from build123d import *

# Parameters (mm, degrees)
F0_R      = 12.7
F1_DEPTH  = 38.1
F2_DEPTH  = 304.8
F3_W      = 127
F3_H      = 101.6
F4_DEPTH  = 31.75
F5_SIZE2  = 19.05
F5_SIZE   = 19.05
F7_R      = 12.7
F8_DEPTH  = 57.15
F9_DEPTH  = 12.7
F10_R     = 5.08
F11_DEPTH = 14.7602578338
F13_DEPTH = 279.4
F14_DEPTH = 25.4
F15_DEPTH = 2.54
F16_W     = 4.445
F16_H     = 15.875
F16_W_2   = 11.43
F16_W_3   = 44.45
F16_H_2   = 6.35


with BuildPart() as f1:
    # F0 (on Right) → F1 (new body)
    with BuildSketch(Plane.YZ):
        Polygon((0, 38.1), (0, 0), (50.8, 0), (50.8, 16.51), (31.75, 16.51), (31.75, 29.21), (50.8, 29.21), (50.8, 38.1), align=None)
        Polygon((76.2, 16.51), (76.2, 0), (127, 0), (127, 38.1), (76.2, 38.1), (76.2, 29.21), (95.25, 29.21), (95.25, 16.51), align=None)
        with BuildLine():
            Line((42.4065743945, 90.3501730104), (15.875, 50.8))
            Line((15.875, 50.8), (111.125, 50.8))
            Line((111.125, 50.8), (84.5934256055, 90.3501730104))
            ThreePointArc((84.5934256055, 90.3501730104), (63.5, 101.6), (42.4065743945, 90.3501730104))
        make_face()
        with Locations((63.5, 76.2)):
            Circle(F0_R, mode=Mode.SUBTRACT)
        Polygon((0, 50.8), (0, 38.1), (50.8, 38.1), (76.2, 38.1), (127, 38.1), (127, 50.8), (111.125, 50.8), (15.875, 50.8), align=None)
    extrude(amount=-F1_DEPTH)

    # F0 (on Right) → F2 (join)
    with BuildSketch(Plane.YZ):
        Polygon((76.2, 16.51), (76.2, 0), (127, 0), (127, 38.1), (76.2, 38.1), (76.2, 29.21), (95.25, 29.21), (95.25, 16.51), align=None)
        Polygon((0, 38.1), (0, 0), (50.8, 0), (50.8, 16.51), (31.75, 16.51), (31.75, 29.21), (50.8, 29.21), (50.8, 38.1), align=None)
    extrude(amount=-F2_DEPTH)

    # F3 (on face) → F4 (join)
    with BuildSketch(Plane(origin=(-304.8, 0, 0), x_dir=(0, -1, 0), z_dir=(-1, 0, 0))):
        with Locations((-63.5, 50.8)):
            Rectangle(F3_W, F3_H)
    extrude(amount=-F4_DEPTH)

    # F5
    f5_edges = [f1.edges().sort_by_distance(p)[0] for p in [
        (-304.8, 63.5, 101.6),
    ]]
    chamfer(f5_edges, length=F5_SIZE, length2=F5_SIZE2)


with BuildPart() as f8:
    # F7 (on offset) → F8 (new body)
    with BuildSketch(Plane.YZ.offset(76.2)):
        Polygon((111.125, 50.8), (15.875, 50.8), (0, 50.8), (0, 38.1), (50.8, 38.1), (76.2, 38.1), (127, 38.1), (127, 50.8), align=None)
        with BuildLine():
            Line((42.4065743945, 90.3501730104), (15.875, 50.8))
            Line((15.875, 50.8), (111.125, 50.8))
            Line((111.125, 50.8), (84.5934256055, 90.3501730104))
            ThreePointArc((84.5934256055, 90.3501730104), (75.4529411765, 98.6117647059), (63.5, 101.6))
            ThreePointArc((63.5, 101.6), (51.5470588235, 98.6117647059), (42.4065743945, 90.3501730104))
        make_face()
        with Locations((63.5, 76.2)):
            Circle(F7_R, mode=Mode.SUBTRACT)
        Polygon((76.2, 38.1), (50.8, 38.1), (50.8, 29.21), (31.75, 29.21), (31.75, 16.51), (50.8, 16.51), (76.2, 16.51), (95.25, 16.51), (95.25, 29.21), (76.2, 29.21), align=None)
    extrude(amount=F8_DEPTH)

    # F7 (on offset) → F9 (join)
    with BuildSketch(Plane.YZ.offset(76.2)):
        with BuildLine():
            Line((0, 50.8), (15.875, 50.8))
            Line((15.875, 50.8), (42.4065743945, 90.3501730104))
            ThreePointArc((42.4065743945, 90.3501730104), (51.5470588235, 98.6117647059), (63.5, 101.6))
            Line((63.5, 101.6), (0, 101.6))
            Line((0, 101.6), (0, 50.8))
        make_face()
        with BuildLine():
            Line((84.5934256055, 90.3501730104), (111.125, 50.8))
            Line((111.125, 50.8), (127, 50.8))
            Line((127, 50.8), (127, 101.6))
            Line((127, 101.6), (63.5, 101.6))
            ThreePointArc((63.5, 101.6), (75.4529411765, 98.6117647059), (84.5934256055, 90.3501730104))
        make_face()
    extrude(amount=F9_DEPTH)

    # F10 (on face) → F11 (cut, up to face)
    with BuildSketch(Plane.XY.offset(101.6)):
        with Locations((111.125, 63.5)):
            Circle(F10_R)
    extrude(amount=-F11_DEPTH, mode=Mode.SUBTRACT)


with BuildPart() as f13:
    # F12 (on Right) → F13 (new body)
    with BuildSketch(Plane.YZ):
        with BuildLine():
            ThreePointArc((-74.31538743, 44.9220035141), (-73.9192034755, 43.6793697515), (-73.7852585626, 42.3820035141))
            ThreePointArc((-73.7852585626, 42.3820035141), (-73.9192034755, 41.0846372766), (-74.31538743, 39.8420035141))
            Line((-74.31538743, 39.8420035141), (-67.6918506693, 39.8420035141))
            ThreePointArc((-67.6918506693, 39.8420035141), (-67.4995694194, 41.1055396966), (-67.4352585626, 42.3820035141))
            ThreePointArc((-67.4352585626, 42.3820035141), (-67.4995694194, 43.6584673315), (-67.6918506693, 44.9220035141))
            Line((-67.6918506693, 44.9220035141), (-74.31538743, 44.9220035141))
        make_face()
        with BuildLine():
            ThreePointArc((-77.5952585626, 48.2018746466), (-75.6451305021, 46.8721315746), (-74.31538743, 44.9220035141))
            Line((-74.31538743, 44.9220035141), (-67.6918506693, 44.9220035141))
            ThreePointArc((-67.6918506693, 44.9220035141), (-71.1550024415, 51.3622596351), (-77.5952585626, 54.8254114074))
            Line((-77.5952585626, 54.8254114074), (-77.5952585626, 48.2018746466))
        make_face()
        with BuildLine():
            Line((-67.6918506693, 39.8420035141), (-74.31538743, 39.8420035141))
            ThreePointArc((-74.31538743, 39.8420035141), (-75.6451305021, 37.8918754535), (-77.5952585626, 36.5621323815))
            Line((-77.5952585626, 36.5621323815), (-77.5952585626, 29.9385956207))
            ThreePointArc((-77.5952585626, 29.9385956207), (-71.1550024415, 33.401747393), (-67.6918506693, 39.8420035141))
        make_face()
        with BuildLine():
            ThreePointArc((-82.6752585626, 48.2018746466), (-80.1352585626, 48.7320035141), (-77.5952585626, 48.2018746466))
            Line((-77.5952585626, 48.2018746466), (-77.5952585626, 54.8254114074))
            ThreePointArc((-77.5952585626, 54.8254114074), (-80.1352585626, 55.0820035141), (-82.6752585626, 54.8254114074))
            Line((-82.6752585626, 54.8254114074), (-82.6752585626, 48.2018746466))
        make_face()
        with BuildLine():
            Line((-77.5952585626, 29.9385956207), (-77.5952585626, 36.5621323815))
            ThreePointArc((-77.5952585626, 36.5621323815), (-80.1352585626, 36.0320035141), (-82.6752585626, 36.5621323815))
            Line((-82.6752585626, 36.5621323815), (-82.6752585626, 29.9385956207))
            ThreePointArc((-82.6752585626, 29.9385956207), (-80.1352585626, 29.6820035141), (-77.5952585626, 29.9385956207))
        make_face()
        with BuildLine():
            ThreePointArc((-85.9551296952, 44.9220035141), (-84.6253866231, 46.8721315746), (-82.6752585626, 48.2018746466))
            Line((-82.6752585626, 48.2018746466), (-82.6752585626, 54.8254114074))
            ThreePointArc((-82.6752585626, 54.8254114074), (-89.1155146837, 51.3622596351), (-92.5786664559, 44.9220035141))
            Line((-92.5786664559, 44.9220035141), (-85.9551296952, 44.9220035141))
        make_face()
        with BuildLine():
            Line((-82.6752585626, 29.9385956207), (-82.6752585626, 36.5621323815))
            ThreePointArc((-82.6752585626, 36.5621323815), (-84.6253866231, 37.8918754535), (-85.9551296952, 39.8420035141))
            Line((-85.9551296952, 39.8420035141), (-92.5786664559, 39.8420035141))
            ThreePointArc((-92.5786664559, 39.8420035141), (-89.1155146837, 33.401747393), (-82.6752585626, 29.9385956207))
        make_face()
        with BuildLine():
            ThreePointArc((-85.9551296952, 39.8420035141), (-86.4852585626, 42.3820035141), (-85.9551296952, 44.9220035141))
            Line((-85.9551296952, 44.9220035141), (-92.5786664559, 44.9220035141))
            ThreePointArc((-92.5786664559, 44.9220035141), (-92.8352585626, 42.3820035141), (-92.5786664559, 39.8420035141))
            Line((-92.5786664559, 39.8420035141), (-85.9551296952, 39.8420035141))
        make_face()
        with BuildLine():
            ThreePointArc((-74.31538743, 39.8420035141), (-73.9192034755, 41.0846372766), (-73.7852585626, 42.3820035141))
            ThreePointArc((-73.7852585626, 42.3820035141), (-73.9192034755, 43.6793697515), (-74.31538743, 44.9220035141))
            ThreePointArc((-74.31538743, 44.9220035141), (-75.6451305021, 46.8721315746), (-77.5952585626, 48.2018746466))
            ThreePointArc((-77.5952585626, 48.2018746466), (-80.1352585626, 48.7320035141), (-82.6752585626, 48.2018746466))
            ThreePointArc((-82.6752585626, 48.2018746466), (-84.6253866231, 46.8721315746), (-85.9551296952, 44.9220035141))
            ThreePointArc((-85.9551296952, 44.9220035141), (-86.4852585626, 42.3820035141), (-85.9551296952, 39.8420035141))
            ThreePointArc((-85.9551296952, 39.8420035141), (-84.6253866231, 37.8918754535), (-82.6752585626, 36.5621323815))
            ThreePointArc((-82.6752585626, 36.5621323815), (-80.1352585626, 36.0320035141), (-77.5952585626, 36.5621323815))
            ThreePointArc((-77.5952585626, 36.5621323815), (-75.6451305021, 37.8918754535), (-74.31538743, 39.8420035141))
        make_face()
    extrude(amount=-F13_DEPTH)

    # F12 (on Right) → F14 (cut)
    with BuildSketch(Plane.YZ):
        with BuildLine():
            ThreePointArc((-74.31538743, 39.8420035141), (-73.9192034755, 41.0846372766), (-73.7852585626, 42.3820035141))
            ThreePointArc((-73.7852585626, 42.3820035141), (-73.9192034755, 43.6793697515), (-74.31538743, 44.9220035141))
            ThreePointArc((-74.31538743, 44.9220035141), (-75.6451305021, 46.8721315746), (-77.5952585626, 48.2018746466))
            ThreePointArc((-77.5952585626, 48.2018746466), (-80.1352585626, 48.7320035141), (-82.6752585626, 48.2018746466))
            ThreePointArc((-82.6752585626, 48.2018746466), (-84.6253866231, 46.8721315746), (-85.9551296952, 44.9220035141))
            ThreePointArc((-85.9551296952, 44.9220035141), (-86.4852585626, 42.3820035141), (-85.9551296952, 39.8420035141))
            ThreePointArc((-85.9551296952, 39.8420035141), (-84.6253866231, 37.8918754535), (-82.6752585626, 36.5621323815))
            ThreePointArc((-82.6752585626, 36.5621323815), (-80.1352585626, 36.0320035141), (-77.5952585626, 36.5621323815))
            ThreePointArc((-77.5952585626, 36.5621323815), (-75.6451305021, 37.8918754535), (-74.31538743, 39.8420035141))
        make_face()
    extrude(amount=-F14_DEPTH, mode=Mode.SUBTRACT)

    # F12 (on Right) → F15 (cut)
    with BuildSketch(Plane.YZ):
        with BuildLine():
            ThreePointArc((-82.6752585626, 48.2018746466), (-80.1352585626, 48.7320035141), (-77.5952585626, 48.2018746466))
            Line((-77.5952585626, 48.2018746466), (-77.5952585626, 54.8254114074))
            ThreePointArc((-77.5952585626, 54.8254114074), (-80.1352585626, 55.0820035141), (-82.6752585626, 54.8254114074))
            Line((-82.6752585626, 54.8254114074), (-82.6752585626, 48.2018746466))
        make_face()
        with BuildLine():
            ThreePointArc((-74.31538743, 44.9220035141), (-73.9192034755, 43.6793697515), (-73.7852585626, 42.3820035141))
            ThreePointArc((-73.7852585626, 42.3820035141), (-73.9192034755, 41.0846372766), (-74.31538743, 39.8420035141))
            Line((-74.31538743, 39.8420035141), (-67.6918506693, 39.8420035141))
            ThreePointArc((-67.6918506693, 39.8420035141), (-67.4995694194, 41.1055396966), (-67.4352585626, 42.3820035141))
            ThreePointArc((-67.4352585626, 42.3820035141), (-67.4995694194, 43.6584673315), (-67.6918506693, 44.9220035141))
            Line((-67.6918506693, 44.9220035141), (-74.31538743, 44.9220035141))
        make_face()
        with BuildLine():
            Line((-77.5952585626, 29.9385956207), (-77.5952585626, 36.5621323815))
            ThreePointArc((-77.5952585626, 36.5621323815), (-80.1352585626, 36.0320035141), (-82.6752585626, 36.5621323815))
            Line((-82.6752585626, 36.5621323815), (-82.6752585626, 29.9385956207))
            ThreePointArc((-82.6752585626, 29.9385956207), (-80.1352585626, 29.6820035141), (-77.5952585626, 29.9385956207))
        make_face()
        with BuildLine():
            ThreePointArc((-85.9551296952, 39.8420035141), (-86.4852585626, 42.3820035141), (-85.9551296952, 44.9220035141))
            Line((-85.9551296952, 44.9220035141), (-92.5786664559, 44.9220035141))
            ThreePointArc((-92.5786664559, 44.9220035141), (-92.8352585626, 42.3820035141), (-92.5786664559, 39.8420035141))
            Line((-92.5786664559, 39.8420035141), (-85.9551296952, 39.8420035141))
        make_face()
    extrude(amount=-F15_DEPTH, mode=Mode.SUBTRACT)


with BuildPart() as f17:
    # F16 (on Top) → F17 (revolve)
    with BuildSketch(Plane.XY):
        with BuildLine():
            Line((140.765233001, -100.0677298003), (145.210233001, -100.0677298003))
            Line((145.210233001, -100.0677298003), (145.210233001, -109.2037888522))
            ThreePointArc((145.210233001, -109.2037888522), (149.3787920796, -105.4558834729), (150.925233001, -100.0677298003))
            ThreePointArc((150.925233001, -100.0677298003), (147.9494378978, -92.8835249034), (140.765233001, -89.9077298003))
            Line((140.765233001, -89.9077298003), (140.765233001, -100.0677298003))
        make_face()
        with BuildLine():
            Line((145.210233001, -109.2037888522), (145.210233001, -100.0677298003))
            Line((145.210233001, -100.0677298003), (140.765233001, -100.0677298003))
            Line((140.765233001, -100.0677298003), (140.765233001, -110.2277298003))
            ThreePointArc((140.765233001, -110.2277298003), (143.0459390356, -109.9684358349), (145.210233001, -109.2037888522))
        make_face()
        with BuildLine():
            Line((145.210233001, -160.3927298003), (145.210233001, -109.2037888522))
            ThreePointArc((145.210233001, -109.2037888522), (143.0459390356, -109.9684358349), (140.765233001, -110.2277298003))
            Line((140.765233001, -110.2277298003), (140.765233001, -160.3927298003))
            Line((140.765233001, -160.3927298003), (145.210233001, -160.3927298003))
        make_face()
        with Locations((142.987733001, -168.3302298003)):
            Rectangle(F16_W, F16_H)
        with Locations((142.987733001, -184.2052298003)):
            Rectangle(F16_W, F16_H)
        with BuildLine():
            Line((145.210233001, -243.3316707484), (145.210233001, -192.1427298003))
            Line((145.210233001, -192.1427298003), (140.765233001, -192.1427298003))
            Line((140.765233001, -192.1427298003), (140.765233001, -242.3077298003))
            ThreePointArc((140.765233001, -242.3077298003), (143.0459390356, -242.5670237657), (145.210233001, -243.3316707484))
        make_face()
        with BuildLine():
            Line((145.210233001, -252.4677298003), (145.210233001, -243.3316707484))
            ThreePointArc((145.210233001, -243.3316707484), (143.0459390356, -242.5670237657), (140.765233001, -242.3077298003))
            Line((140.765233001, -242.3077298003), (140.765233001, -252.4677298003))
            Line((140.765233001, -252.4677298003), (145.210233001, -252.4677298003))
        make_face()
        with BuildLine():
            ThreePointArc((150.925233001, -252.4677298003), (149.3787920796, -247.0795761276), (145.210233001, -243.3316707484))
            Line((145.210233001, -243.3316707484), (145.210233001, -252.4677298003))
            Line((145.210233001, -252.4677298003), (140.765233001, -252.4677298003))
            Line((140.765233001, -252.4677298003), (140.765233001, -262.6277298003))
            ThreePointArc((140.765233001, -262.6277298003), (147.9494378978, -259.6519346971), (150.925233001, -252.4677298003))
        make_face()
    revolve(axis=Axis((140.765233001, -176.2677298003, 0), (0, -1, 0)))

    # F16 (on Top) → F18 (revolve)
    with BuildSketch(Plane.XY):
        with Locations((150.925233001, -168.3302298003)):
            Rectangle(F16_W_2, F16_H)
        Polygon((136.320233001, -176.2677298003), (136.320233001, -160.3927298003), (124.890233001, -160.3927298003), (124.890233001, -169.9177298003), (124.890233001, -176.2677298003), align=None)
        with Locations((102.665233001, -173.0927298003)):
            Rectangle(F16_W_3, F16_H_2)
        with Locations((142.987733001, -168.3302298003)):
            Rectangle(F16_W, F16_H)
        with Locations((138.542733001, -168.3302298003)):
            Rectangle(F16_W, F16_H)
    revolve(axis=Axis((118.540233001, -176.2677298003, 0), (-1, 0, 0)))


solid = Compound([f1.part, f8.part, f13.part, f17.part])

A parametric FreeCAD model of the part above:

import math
import FreeCAD as App
import Part
import Sketcher
Q = App.Units.Quantity


def edges_at(feature, points):
    """Names of the edges that pass closest to the given points."""
    edges = feature.Shape.Edges
    near = lambda p: min(range(len(edges)), key=lambda i: edges[i].distToShape(Part.Vertex(*p))[0])
    return sorted({f"Edge{near(p) + 1}" for p in points})


def add_polygon(sketch, points):
    """Adds a closed chain of lines whose ends are joined by coincident constraints."""
    first, n = sketch.GeometryCount, len(points)
    for a, b in zip(points, points[1:] + points[:1]):
        sketch.addGeometry(Part.LineSegment(App.Vector(*a, 0), App.Vector(*b, 0)), False)
    for i in range(n):
        sketch.addConstraint(Sketcher.Constraint("Coincident", first + i, 2, first + (i + 1) % n, 1))

doc = App.newDocument("Part")
params = doc.addObject("Spreadsheet::Sheet", "Params")
for row, (alias, value) in enumerate([
    ("sketch1_diameter", "1 in"),
    ("sketch1_radius", "1 in"),
    ("sketch1_width", "2 in"),
    ("sketch1_width2", "1 in"),
    ("sketch1_height", "0.5 in"),
    ("pad1_length", "1.5 in"),
    ("sketch2_width", "2 in"),
    ("sketch2_height", "1.5 in"),
    ("sketch2_height2", "0.5 in"),
    ("sketch2_width2", "0.75 in"),
    ("sketch2_height3", "0.65 in"),
    ("pad2_length", "12 in"),
    ("sketch3_width", "5 in"),
    ("sketch3_height", "4 in"),
    ("pad3_length", "1.25 in"),
    ("chamfer_size", "0.75 in"),
    ("chamfer_size2", "0.75 in"),
    ("sketch4_diameter", "1 in"),
    ("sketch4_radius", "1 in"),
    ("sketch4_width", "2 in"),
    ("sketch4_width2", "2.5 in"),
    ("sketch4_height", "0.5 in"),
    ("pad4_length", "2.25 in"),
    ("sketch5_radius", "1 in"),
    ("sketch5_height", "2 in"),
    ("sketch5_width", "2.5 in"),
    ("sketch5_width2", "0.625 in"),
    ("pad5_length", "0.5 in"),
    ("sketch6_diameter", "0.4 in"),
    ("pocket1_length", "14.760258 mm"),
    ("sketch7_radius", "0.5 in"),
    ("pad6_length", "11 in"),
    ("sketch8_radius", "0.25 in"),
    ("pocket2_length", "1 in"),
    ("sketch9_radius", "0.5 in"),
    ("sketch9_radius2", "0.25 in"),
    ("pocket3_length", "0.1 in"),
    ("sketch10_radius", "0.4 in"),
    ("sketch10_height", "6.8 in"),
    ("revolution_angle", "360 deg"),
    ("sketch11_width", "3 in"),
    ("sketch11_width2", "1.25 in"),
    ("sketch11_height", "0.25 in"),
    ("sketch11_height2", "0.625 in"),
    ("revolution2_angle", "360 deg"),
], start=1):
    params.set(f"A{row}", alias)
    params.set(f"B{row}", "=" + value)
    params.setAlias(f"B{row}", alias)

body = doc.addObject("PartDesign::Body", "Body")

sketch1 = doc.addObject("Sketcher::SketchObject", "Sketch")
body.addObject(sketch1)
sketch1.AttachmentSupport = (doc.YZ_Plane, [""])
sketch1.MapMode = "FlatFace"
sketch1.addGeometry([
    Part.LineSegment(App.Vector(0, 0, 0), App.Vector(51, 0, 0)),
    Part.LineSegment(App.Vector(51, 0, 0), App.Vector(51, 17, 0)),
    Part.LineSegment(App.Vector(51, 17, 0), App.Vector(32, 17, 0)),
    Part.LineSegment(App.Vector(32, 17, 0), App.Vector(32, 29, 0)),
    Part.LineSegment(App.Vector(32, 29, 0), App.Vector(51, 29, 0)),
    Part.LineSegment(App.Vector(51, 29, 0), App.Vector(51, 38, 0)),
    Part.LineSegment(App.Vector(51, 38, 0), App.Vector(76, 38, 0)),
    Part.LineSegment(App.Vector(76, 38, 0), App.Vector(76, 29, 0)),
    Part.LineSegment(App.Vector(76, 29, 0), App.Vector(95, 29, 0)),
    Part.LineSegment(App.Vector(95, 29, 0), App.Vector(95, 17, 0)),
    Part.LineSegment(App.Vector(95, 17, 0), App.Vector(76, 17, 0)),
    Part.LineSegment(App.Vector(76, 17, 0), App.Vector(76, 0, 0)),
    Part.LineSegment(App.Vector(76, 0, 0), App.Vector(127, 0, 0)),
    Part.LineSegment(App.Vector(127, 0, 0), App.Vector(127, 51, 0)),
    Part.LineSegment(App.Vector(127, 51, 0), App.Vector(111, 51, 0)),
    Part.LineSegment(App.Vector(111, 51, 0), App.Vector(85, 90, 0)),
    Part.ArcOfCircle(Part.Circle(App.Vector(64, 76, 0), App.Vector(0, 0, 1), 25), math.radians(34), math.radians(146)),
    Part.LineSegment(App.Vector(42, 90, 0), App.Vector(16, 51, 0)),
    Part.LineSegment(App.Vector(16, 51, 0), App.Vector(0, 51, 0)),
    Part.LineSegment(App.Vector(0, 51, 0), App.Vector(0, 0, 0)),
    Part.Circle(App.Vector(64, 76, 0), App.Vector(0, 0, 1), 13),
], False)
sketch1.addConstraint([
    Sketcher.Constraint("Coincident", 0, 2, 1, 1),
    Sketcher.Constraint("Coincident", 1, 2, 2, 1),
    Sketcher.Constraint("Coincident", 2, 2, 3, 1),
    Sketcher.Constraint("Coincident", 3, 2, 4, 1),
    Sketcher.Constraint("Coincident", 4, 2, 5, 1),
    Sketcher.Constraint("Coincident", 5, 2, 6, 1),
    Sketcher.Constraint("Coincident", 6, 2, 7, 1),
    Sketcher.Constraint("Coincident", 7, 2, 8, 1),
    Sketcher.Constraint("Coincident", 8, 2, 9, 1),
    Sketcher.Constraint("Coincident", 9, 2, 10, 1),
    Sketcher.Constraint("Coincident", 10, 2, 11, 1),
    Sketcher.Constraint("Coincident", 11, 2, 12, 1),
    Sketcher.Constraint("Coincident", 12, 2, 13, 1),
    Sketcher.Constraint("Coincident", 13, 2, 14, 1),
    Sketcher.Constraint("Coincident", 14, 2, 15, 1),
    Sketcher.Constraint("Tangent", 15, 2, 16, 1),
    Sketcher.Constraint("Tangent", 16, 2, 17, 1),
    Sketcher.Constraint("Coincident", 17, 2, 18, 1),
    Sketcher.Constraint("Coincident", 18, 2, 19, 1),
    Sketcher.Constraint("Coincident", 19, 2, 0, 1),
    Sketcher.Constraint("Horizontal", 0),
    Sketcher.Constraint("Vertical", 1),
    Sketcher.Constraint("Horizontal", 2),
    Sketcher.Constraint("Vertical", 3),
    Sketcher.Constraint("Horizontal", 4),
    Sketcher.Constraint("Vertical", 5),
    Sketcher.Constraint("Horizontal", 6),
    Sketcher.Constraint("Vertical", 7),
    Sketcher.Constraint("Horizontal", 8),
    Sketcher.Constraint("Vertical", 9),
    Sketcher.Constraint("Horizontal", 10),
    Sketcher.Constraint("Vertical", 11),
    Sketcher.Constraint("Horizontal", 12),
    Sketcher.Constraint("Vertical", 13),
    Sketcher.Constraint("Horizontal", 14),
    Sketcher.Constraint("Horizontal", 18),
    Sketcher.Constraint("Vertical", 19),
    Sketcher.Constraint("Coincident", 19, 2, -1, 1),
    Sketcher.Constraint("Coincident", 20, 3, 16, 3),
    Sketcher.Constraint("PointOnObject", 11, 2, -1),
    Sketcher.Constraint("Horizontal", 4, 2, 7, 2),
    Sketcher.Constraint("Horizontal", 2, 2, 9, 2),
    Sketcher.Constraint("Horizontal", 15, 2, 16, 2),
    Sketcher.Constraint("Horizontal", 14, 2, 17, 2),
    Sketcher.Constraint("Vertical", 1, 2, 4, 2),
    Sketcher.Constraint("Vertical", 7, 2, 10, 2),
    Sketcher.Constraint("Equal", 4, 8),
    Sketcher.Constraint("Equal", 0, 12),
    Sketcher.Constraint("Equal", 14, 18),
    Sketcher.Constraint("Equal", 12, 13),
    Sketcher.Constraint("Diameter", 20, Q("1 in")),
    Sketcher.Constraint("Radius", 16, Q("1 in")),
    Sketcher.Constraint("DistanceX", 0, 1, 0, 2, Q("2 in")),
    Sketcher.Constraint("DistanceX", 6, 1, 6, 2, Q("1 in")),
    Sketcher.Constraint("DistanceY", 3, 1, 3, 2, Q("0.5 in")),
    Sketcher.Constraint("DistanceY", -1, 1, 16, 3, Q("3 in")),
    Sketcher.Constraint("DistanceX", 2, 2, 2, 1, Q("0.75 in")),
    Sketcher.Constraint("DistanceY", 1, 1, 1, 2, Q("0.65 in")),
    Sketcher.Constraint("DistanceY", 5, 1, 5, 2, Q("0.35 in")),
    Sketcher.Constraint("DistanceX", 14, 2, 14, 1, Q("0.625 in")),
])
sketch1.setExpression("Constraints[50]", "Params.sketch1_diameter")
sketch1.setExpression("Constraints[51]", "Params.sketch1_radius")
sketch1.setExpression("Constraints[52]", "Params.sketch1_width")
sketch1.setExpression("Constraints[53]", "Params.sketch1_width2")
sketch1.setExpression("Constraints[54]", "Params.sketch1_height")
pad1 = doc.addObject("PartDesign::Pad", "Pad")
body.addObject(pad1)
pad1.Profile = sketch1
pad1.setExpression("Length", "Params.pad1_length")
pad1.Reversed = True

sketch2 = doc.addObject("Sketcher::SketchObject", "Sketch001")
body.addObject(sketch2)
sketch2.AttachmentSupport = (doc.YZ_Plane, [""])
sketch2.MapMode = "FlatFace"
add_polygon(sketch2, [(76, 17), (76, 0), (127, 0), (127, 38), (76, 38), (76, 29), (95, 29), (95, 17)])
add_polygon(sketch2, [(0, 38), (0, 0), (51, 0), (51, 17), (32, 17), (32, 29), (51, 29), (51, 38)])
sketch2.addConstraint([
    Sketcher.Constraint("Vertical", 0),
    Sketcher.Constraint("Horizontal", 1),
    Sketcher.Constraint("Vertical", 2),
    Sketcher.Constraint("Horizontal", 3),
    Sketcher.Constraint("Vertical", 4),
    Sketcher.Constraint("Horizontal", 5),
    Sketcher.Constraint("Vertical", 6),
    Sketcher.Constraint("Horizontal", 7),
    Sketcher.Constraint("Vertical", 8),
    Sketcher.Constraint("Horizontal", 9),
    Sketcher.Constraint("Vertical", 10),
    Sketcher.Constraint("Horizontal", 11),
    Sketcher.Constraint("Vertical", 12),
    Sketcher.Constraint("Horizontal", 13),
    Sketcher.Constraint("Vertical", 14),
    Sketcher.Constraint("Horizontal", 15),
    Sketcher.Constraint("Coincident", 8, 2, -1, 1),
    Sketcher.Constraint("PointOnObject", 0, 2, -1),
    Sketcher.Constraint("Horizontal", 7, 2, 10, 2),
    Sketcher.Constraint("Horizontal", 5, 2, 12, 2),
    Sketcher.Constraint("Horizontal", 3, 2, 14, 2),
    Sketcher.Constraint("Vertical", 0, 2, 3, 2),
    Sketcher.Constraint("Vertical", 10, 2, 13, 2),
    Sketcher.Constraint("Equal", 3, 9),
    Sketcher.Constraint("Equal", 7, 11),
    Sketcher.Constraint("DistanceX", 1, 1, 1, 2, Q("2 in")),
    Sketcher.Constraint("DistanceY", 2, 1, 2, 2, Q("1.5 in")),
    Sketcher.Constraint("DistanceY", 6, 2, 6, 1, Q("0.5 in")),
    Sketcher.Constraint("DistanceX", -1, 1, 0, 2, Q("3 in")),
    Sketcher.Constraint("DistanceX", 5, 1, 5, 2, Q("0.75 in")),
    Sketcher.Constraint("DistanceY", 0, 2, 0, 1, Q("0.65 in")),
])
sketch2.setExpression("Constraints[41]", "Params.sketch2_width")
sketch2.setExpression("Constraints[42]", "Params.sketch2_height")
sketch2.setExpression("Constraints[43]", "Params.sketch2_height2")
sketch2.setExpression("Constraints[45]", "Params.sketch2_width2")
sketch2.setExpression("Constraints[46]", "Params.sketch2_height3")
pad2 = doc.addObject("PartDesign::Pad", "Pad001")
body.addObject(pad2)
pad2.Profile = sketch2
pad2.setExpression("Length", "Params.pad2_length")
pad2.Reversed = True

sketch3 = doc.addObject("Sketcher::SketchObject", "Sketch002")
body.addObject(sketch3)
sketch3.AttachmentSupport = (doc.YZ_Plane, [""])
sketch3.MapMode = "FlatFace"
sketch3.AttachmentOffset = App.Placement(App.Vector(0, 0, -12 * 25.4), App.Rotation())
add_polygon(sketch3, [(127, 102), (127, 0), (0, 0), (0, 102)])
sketch3.addConstraint([
    Sketcher.Constraint("Vertical", 0),
    Sketcher.Constraint("Horizontal", 1),
    Sketcher.Constraint("Vertical", 2),
    Sketcher.Constraint("Horizontal", 3),
    Sketcher.Constraint("Coincident", 1, 2, -1, 1),
    Sketcher.Constraint("DistanceX", 1, 2, 1, 1, Q("5 in")),
    Sketcher.Constraint("DistanceY", 0, 2, 0, 1, Q("4 in")),
])
sketch3.setExpression("Constraints[9]", "Params.sketch3_width")
sketch3.setExpression("Constraints[10]", "Params.sketch3_height")
pad3 = doc.addObject("PartDesign::Pad", "Pad002")
body.addObject(pad3)
pad3.Profile = sketch3
pad3.setExpression("Length", "Params.pad3_length")
doc.recompute()

chamfer = doc.addObject("PartDesign::Chamfer", "Chamfer")
body.addObject(chamfer)
chamfer.Base = (pad3, edges_at(pad3, [(-304.8, 63.5, 101.6)]))
chamfer.ChamferType = "Two distances"
chamfer.setExpression("Size", "Params.chamfer_size")
chamfer.setExpression("Size2", "Params.chamfer_size2")
body2 = doc.addObject("PartDesign::Body", "Body001")

sketch4 = doc.addObject("Sketcher::SketchObject", "Sketch003")
body2.addObject(sketch4)
sketch4.AttachmentSupport = (doc.getObject("YZ_Plane001"), [""])
sketch4.MapMode = "FlatFace"
sketch4.AttachmentOffset = App.Placement(App.Vector(0, 0, 3 * 25.4), App.Rotation())
sketch4.addGeometry([
    Part.LineSegment(App.Vector(0, 51, 0), App.Vector(0, 38, 0)),
    Part.LineSegment(App.Vector(0, 38, 0), App.Vector(51, 38, 0)),
    Part.LineSegment(App.Vector(51, 38, 0), App.Vector(51, 29, 0)),
    Part.LineSegment(App.Vector(51, 29, 0), App.Vector(32, 29, 0)),
    Part.LineSegment(App.Vector(32, 29, 0), App.Vector(32, 17, 0)),
    Part.LineSegment(App.Vector(32, 17, 0), App.Vector(95, 17, 0)),
    Part.LineSegment(App.Vector(95, 17, 0), App.Vector(95, 29, 0)),
    Part.LineSegment(App.Vector(95, 29, 0), App.Vector(76, 29, 0)),
    Part.LineSegment(App.Vector(76, 29, 0), App.Vector(76, 38, 0)),
    Part.LineSegment(App.Vector(76, 38, 0), App.Vector(127, 38, 0)),
    Part.LineSegment(App.Vector(127, 38, 0), App.Vector(127, 51, 0)),
    Part.LineSegment(App.Vector(127, 51, 0), App.Vector(111, 51, 0)),
    Part.LineSegment(App.Vector(111, 51, 0), App.Vector(85, 90, 0)),
    Part.ArcOfCircle(Part.Circle(App.Vector(64, 76, 0), App.Vector(0, 0, 1), 25), math.radians(34), math.radians(90)),
    Part.ArcOfCircle(Part.Circle(App.Vector(64, 76, 0), App.Vector(0, 0, 1), 25), math.radians(90), math.radians(146)),
    Part.LineSegment(App.Vector(42, 90, 0), App.Vector(16, 51, 0)),
    Part.LineSegment(App.Vector(16, 51, 0), App.Vector(0, 51, 0)),
    Part.Circle(App.Vector(64, 76, 0), App.Vector(0, 0, 1), 13),
], False)
sketch4.addConstraint([
    Sketcher.Constraint("Coincident", 0, 2, 1, 1),
    Sketcher.Constraint("Coincident", 1, 2, 2, 1),
    Sketcher.Constraint("Coincident", 2, 2, 3, 1),
    Sketcher.Constraint("Coincident", 3, 2, 4, 1),
    Sketcher.Constraint("Coincident", 4, 2, 5, 1),
    Sketcher.Constraint("Coincident", 5, 2, 6, 1),
    Sketcher.Constraint("Coincident", 6, 2, 7, 1),
    Sketcher.Constraint("Coincident", 7, 2, 8, 1),
    Sketcher.Constraint("Coincident", 8, 2, 9, 1),
    Sketcher.Constraint("Coincident", 9, 2, 10, 1),
    Sketcher.Constraint("Coincident", 10, 2, 11, 1),
    Sketcher.Constraint("Coincident", 11, 2, 12, 1),
    Sketcher.Constraint("Tangent", 12, 2, 13, 1),
    Sketcher.Constraint("Tangent", 13, 2, 14, 1),
    Sketcher.Constraint("Tangent", 14, 2, 15, 1),
    Sketcher.Constraint("Coincident", 15, 2, 16, 1),
    Sketcher.Constraint("Coincident", 16, 2, 0, 1),
    Sketcher.Constraint("Vertical", 0),
    Sketcher.Constraint("Horizontal", 1),
    Sketcher.Constraint("Vertical", 2),
    Sketcher.Constraint("Horizontal", 3),
    Sketcher.Constraint("Vertical", 4),
    Sketcher.Constraint("Horizontal", 5),
    Sketcher.Constraint("Vertical", 6),
    Sketcher.Constraint("Horizontal", 7),
    Sketcher.Constraint("Vertical", 8),
    Sketcher.Constraint("Horizontal", 9),
    Sketcher.Constraint("Vertical", 10),
    Sketcher.Constraint("Horizontal", 11),
    Sketcher.Constraint("Horizontal", 16),
    Sketcher.Constraint("Coincident", 17, 3, 13, 3),
    Sketcher.Constraint("Equal", 13, 14),
    Sketcher.Constraint("PointOnObject", 0, 2, -2),
    Sketcher.Constraint("Horizontal", 3, 2, 6, 2),
    Sketcher.Constraint("Horizontal", 1, 2, 8, 2),
    Sketcher.Constraint("Horizontal", 12, 2, 14, 2),
    Sketcher.Constraint("Horizontal", 11, 2, 15, 2),
    Sketcher.Constraint("Vertical", 17, 3, 13, 2),
    Sketcher.Constraint("Equal", 3, 7),
    Sketcher.Constraint("Equal", 1, 9),
    Sketcher.Constraint("Equal", 11, 16),
    Sketcher.Constraint("Equal", 0, 4),
    Sketcher.Constraint("Diameter", 17, Q("1 in")),
    Sketcher.Constraint("Radius", 13, Q("1 in")),
    Sketcher.Constraint("DistanceX", 1, 1, 1, 2, Q("2 in")),
    Sketcher.Constraint("DistanceX", 5, 1, 5, 2, Q("2.5 in")),
    Sketcher.Constraint("DistanceY", 0, 2, 0, 1, Q("0.5 in")),
    Sketcher.Constraint("DistanceY", -1, 1, 13, 3, Q("3 in")),
    Sketcher.Constraint("DistanceX", -1, 1, 7, 2, Q("3 in")),
    Sketcher.Constraint("DistanceY", -1, 1, 10, 2, Q("2 in")),
    Sketcher.Constraint("DistanceY", 2, 2, 2, 1, Q("0.35 in")),
    Sketcher.Constraint("DistanceX", 11, 2, 11, 1, Q("0.625 in")),
])
sketch4.setExpression("Constraints[42]", "Params.sketch4_diameter")
sketch4.setExpression("Constraints[43]", "Params.sketch4_radius")
sketch4.setExpression("Constraints[44]", "Params.sketch4_width")
sketch4.setExpression("Constraints[45]", "Params.sketch4_width2")
sketch4.setExpression("Constraints[46]", "Params.sketch4_height")
pad4 = doc.addObject("PartDesign::Pad", "Pad003")
body2.addObject(pad4)
pad4.Profile = sketch4
pad4.setExpression("Length", "Params.pad4_length")

sketch5 = doc.addObject("Sketcher::SketchObject", "Sketch004")
body2.addObject(sketch5)
sketch5.AttachmentSupport = (doc.getObject("YZ_Plane001"), [""])
sketch5.MapMode = "FlatFace"
sketch5.AttachmentOffset = App.Placement(App.Vector(0, 0, 3 * 25.4), App.Rotation())
sketch5.addGeometry([
    Part.LineSegment(App.Vector(0, 51, 0), App.Vector(16, 51, 0)),
    Part.LineSegment(App.Vector(16, 51, 0), App.Vector(42, 90, 0)),
    Part.ArcOfCircle(Part.Circle(App.Vector(64, 76, 0), App.Vector(0, 0, 1), 25), math.radians(90), math.radians(146)),
    Part.LineSegment(App.Vector(64, 102, 0), App.Vector(0, 102, 0)),
    Part.LineSegment(App.Vector(0, 102, 0), App.Vector(0, 51, 0)),
    Part.LineSegment(App.Vector(85, 90, 0), App.Vector(111, 51, 0)),
    Part.LineSegment(App.Vector(111, 51, 0), App.Vector(127, 51, 0)),
    Part.LineSegment(App.Vector(127, 51, 0), App.Vector(127, 102, 0)),
    Part.LineSegment(App.Vector(127, 102, 0), App.Vector(64, 102, 0)),
    Part.ArcOfCircle(Part.Circle(App.Vector(64, 76, 0), App.Vector(0, 0, 1), 25), math.radians(34), math.radians(90)),
], False)
sketch5.addConstraint([
    Sketcher.Constraint("Coincident", 0, 2, 1, 1),
    Sketcher.Constraint("Tangent", 1, 2, 2, 2),
    Sketcher.Constraint("Tangent", 2, 1, 3, 1),
    Sketcher.Constraint("Coincident", 3, 2, 4, 1),
    Sketcher.Constraint("Coincident", 4, 2, 0, 1),
    Sketcher.Constraint("Coincident", 5, 2, 6, 1),
    Sketcher.Constraint("Coincident", 6, 2, 7, 1),
    Sketcher.Constraint("Coincident", 7, 2, 8, 1),
    Sketcher.Constraint("Tangent", 8, 2, 9, 2),
    Sketcher.Constraint("Tangent", 9, 1, 5, 1),
    Sketcher.Constraint("Horizontal", 0),
    Sketcher.Constraint("Horizontal", 3),
    Sketcher.Constraint("Vertical", 4),
    Sketcher.Constraint("Horizontal", 6),
    Sketcher.Constraint("Vertical", 7),
    Sketcher.Constraint("Horizontal", 8),
    Sketcher.Constraint("Coincident", 9, 3, 2, 3),
    Sketcher.Constraint("Equal", 2, 9),
    Sketcher.Constraint("PointOnObject", 3, 2, -2),
    Sketcher.Constraint("Horizontal", 4, 2, 5, 2),
    Sketcher.Constraint("Horizontal", 1, 2, 9, 1),
    Sketcher.Constraint("Equal", 0, 6),
    Sketcher.Constraint("Radius", 2, Q("1 in")),
    Sketcher.Constraint("DistanceY", 4, 2, 4, 1, Q("2 in")),
    Sketcher.Constraint("DistanceX", 3, 2, 3, 1, Q("2.5 in")),
    Sketcher.Constraint("DistanceY", -1, 1, 2, 3, Q("3 in")),
    Sketcher.Constraint("DistanceX", 0, 1, 0, 2, Q("0.625 in")),
])
sketch5.setExpression("Constraints[22]", "Params.sketch5_radius")
sketch5.setExpression("Constraints[23]", "Params.sketch5_height")
sketch5.setExpression("Constraints[24]", "Params.sketch5_width")
sketch5.setExpression("Constraints[26]", "Params.sketch5_width2")
pad5 = doc.addObject("PartDesign::Pad", "Pad004")
body2.addObject(pad5)
pad5.Profile = sketch5
pad5.setExpression("Length", "Params.pad5_length")

sketch6 = doc.addObject("Sketcher::SketchObject", "Sketch005")
body2.addObject(sketch6)
sketch6.AttachmentSupport = (doc.getObject("XY_Plane001"), [""])
sketch6.MapMode = "FlatFace"
sketch6.AttachmentOffset = App.Placement(App.Vector(0, 0, 4 * 25.4), App.Rotation())
sketch6.addGeometry(Part.Circle(App.Vector(111, 64, 0), App.Vector(0, 0, 1), 5), False)
sketch6.addConstraint([
    Sketcher.Constraint("Diameter", 0, Q("0.4 in")),
    Sketcher.Constraint("DistanceY", -1, 1, 0, 3, Q("2.5 in")),
    Sketcher.Constraint("DistanceX", -1, 1, 0, 3, Q("4.375 in")),
])
sketch6.setExpression("Constraints[0]", "Params.sketch6_diameter")
pocket1 = doc.addObject("PartDesign::Pocket", "Pocket")
body2.addObject(pocket1)
pocket1.Profile = sketch6
pocket1.setExpression("Length", "Params.pocket1_length")
body3 = doc.addObject("PartDesign::Body", "Body002")

sketch7 = doc.addObject("Sketcher::SketchObject", "Sketch006")
body3.addObject(sketch7)
sketch7.AttachmentSupport = (doc.getObject("YZ_Plane002"), [""])
sketch7.MapMode = "FlatFace"
sketch7.addGeometry([
    Part.ArcOfCircle(Part.Circle(App.Vector(-80.1, 42.4, 0), App.Vector(0, 0, 1), 12.7), math.radians(-168), math.radians(-102)),
    Part.ArcOfCircle(Part.Circle(App.Vector(-80.1, 42.4, 0), App.Vector(0, 0, 1), 12.7), math.radians(-102), math.radians(-78)),
    Part.ArcOfCircle(Part.Circle(App.Vector(-80.1, 42.4, 0), App.Vector(0, 0, 1), 12.7), math.radians(-78), math.radians(-12)),
    Part.ArcOfCircle(Part.Circle(App.Vector(-80.1, 42.4, 0), App.Vector(0, 0, 1), 12.7), math.radians(-11.54), math.radians(0)),
    Part.ArcOfCircle(Part.Circle(App.Vector(-80.1, 42.4, 0), App.Vector(0, 0, 1), 12.7), math.radians(0), math.radians(11.54)),
    Part.ArcOfCircle(Part.Circle(App.Vector(-80.1, 42.4, 0), App.Vector(0, 0, 1), 12.7), math.radians(12), math.radians(78)),
    Part.ArcOfCircle(Part.Circle(App.Vector(-80.1, 42.4, 0), App.Vector(0, 0, 1), 12.7), math.radians(78), math.radians(102)),
    Part.ArcOfCircle(Part.Circle(App.Vector(-80.1, 42.4, 0), App.Vector(0, 0, 1), 12.7), math.radians(102), math.radians(168)),
    Part.ArcOfCircle(Part.Circle(App.Vector(-80.1, 42.4, 0), App.Vector(0, 0, 1), 12.7), math.radians(168), math.radians(192)),
], False)
sketch7.addConstraint([
    Sketcher.Constraint("Tangent", 0, 2, 1, 1),
    Sketcher.Constraint("Tangent", 1, 2, 2, 1),
    Sketcher.Constraint("Tangent", 2, 2, 3, 1),
    Sketcher.Constraint("Tangent", 3, 2, 4, 1),
    Sketcher.Constraint("Tangent", 4, 2, 5, 1),
    Sketcher.Constraint("Tangent", 5, 2, 6, 1),
    Sketcher.Constraint("Tangent", 6, 2, 7, 1),
    Sketcher.Constraint("Tangent", 7, 2, 8, 1),
    Sketcher.Constraint("Tangent", 8, 2, 0, 1),
    Sketcher.Constraint("Coincident", 2, 3, 0, 3),
    Sketcher.Constraint("Coincident", 4, 3, 0, 3),
    Sketcher.Constraint("Coincident", 6, 3, 0, 3),
    Sketcher.Constraint("Horizontal", 0, 2, 1, 2),
    Sketcher.Constraint("Horizontal", 8, 3, 3, 2),
    Sketcher.Constraint("Horizontal", 5, 2, 6, 2),
    Sketcher.Constraint("Horizontal", 4, 2, 7, 2),
    Sketcher.Constraint("Horizontal", 2, 2, 8, 2),
    Sketcher.Constraint("Vertical", 2, 2, 4, 2),
    Sketcher.Constraint("Vertical", 1, 2, 5, 2),
    Sketcher.Constraint("Radius", 0, Q("0.5 in")),
    Sketcher.Constraint("DistanceX", 0, 2, 8, 3, Q("0.1 in")),
    Sketcher.Constraint("DistanceY", 2, 2, 3, 3, Q("0.1 in")),
    Sketcher.Constraint("DistanceX", 0, 3, -1, 1, 80.135259),
    Sketcher.Constraint("DistanceY", -1, 1, 5, 2, 54.825411),
])
sketch7.setExpression("Constraints[19]", "Params.sketch7_radius")
pad6 = doc.addObject("PartDesign::Pad", "Pad005")
body3.addObject(pad6)
pad6.Profile = sketch7
pad6.setExpression("Length", "Params.pad6_length")
pad6.Reversed = True

sketch8 = doc.addObject("Sketcher::SketchObject", "Sketch007")
body3.addObject(sketch8)
sketch8.AttachmentSupport = (doc.getObject("YZ_Plane002"), [""])
sketch8.MapMode = "FlatFace"
sketch8.addGeometry([
    Part.ArcOfCircle(Part.Circle(App.Vector(-80.1, 42.4, 0), App.Vector(0, 0, 1), 6.3), math.radians(-24), math.radians(0)),
    Part.ArcOfCircle(Part.Circle(App.Vector(-80.1, 42.4, 0), App.Vector(0, 0, 1), 6.4), math.radians(0), math.radians(24)),
    Part.ArcOfCircle(Part.Circle(App.Vector(-80.1, 42.4, 0), App.Vector(0, 0, 1), 6.3), math.radians(24), math.radians(66)),
    Part.ArcOfCircle(Part.Circle(App.Vector(-80.1, 42.4, 0), App.Vector(0, 0, 1), 6.3), math.radians(66), math.radians(114)),
    Part.ArcOfCircle(Part.Circle(App.Vector(-80.1, 42.4, 0), App.Vector(0, 0, 1), 6.3), math.radians(114), math.radians(156)),
    Part.ArcOfCircle(Part.Circle(App.Vector(-80.1, 42.4, 0), App.Vector(0, 0, 1), 6.3), math.radians(156), math.radians(204)),
    Part.ArcOfCircle(Part.Circle(App.Vector(-80.1, 42.4, 0), App.Vector(0, 0, 1), 6.3), math.radians(-156), math.radians(-114)),
    Part.ArcOfCircle(Part.Circle(App.Vector(-80.1, 42.4, 0), App.Vector(0, 0, 1), 6.3), math.radians(-114), math.radians(-66)),
    Part.ArcOfCircle(Part.Circle(App.Vector(-80.1, 42.4, 0), App.Vector(0, 0, 1), 6.3), math.radians(-66), math.radians(-24)),
], False)
sketch8.addConstraint([
    Sketcher.Constraint("Tangent", 0, 2, 1, 1),
    Sketcher.Constraint("Tangent", 1, 2, 2, 1),
    Sketcher.Constraint("Tangent", 2, 2, 3, 1),
    Sketcher.Constraint("Tangent", 3, 2, 4, 1),
    Sketcher.Constraint("Tangent", 4, 2, 5, 1),
    Sketcher.Constraint("Tangent", 5, 2, 6, 1),
    Sketcher.Constraint("Tangent", 6, 2, 7, 1),
    Sketcher.Constraint("Tangent", 7, 2, 8, 1),
    Sketcher.Constraint("Tangent", 8, 2, 0, 1),
    Sketcher.Constraint("Coincident", 2, 3, 0, 3),
    Sketcher.Constraint("Coincident", 4, 3, 0, 3),
    Sketcher.Constraint("Coincident", 6, 3, 0, 3),
    Sketcher.Constraint("Horizontal", 8, 3, 0, 2),
    Sketcher.Constraint("Horizontal", 2, 2, 3, 2),
    Sketcher.Constraint("Horizontal", 1, 2, 4, 2),
    Sketcher.Constraint("Horizontal", 6, 2, 7, 2),
    Sketcher.Constraint("Horizontal", 5, 2, 8, 2),
    Sketcher.Constraint("Vertical", 4, 2, 5, 2),
    Sketcher.Constraint("Vertical", 3, 2, 6, 2),
    Sketcher.Constraint("Radius", 0, Q("0.25 in")),
    Sketcher.Constraint("DistanceY", 0, 2, 1, 2, Q("0.1 in")),
    Sketcher.Constraint("DistanceX", 3, 3, 2, 2, Q("0.1 in")),
    Sketcher.Constraint("DistanceX", 0, 3, -1, 1, 80.135259),
    Sketcher.Constraint("DistanceY", -1, 1, 0, 3, 42.382004),
])
sketch8.setExpression("Constraints[19]", "Params.sketch8_radius")
pocket2 = doc.addObject("PartDesign::Pocket", "Pocket001")
body3.addObject(pocket2)
pocket2.Profile = sketch8
pocket2.setExpression("Length", "Params.pocket2_length")

sketch9 = doc.addObject("Sketcher::SketchObject", "Sketch008")
body3.addObject(sketch9)
sketch9.AttachmentSupport = (doc.getObject("YZ_Plane002"), [""])
sketch9.MapMode = "FlatFace"
sketch9.addGeometry([
    Part.ArcOfCircle(Part.Circle(App.Vector(-80.1, 42.4, 0), App.Vector(0, 0, 1), 6.3), math.radians(66), math.radians(114)),
    Part.LineSegment(App.Vector(-77.6, 48.2, 0), App.Vector(-77.6, 54.8, 0)),
    Part.ArcOfCircle(Part.Circle(App.Vector(-80.1, 42.4, 0), App.Vector(0, 0, 1), 12.7), math.radians(78), math.radians(102)),
    Part.LineSegment(App.Vector(-82.7, 54.8, 0), App.Vector(-82.7, 48.2, 0)),
    Part.ArcOfCircle(Part.Circle(App.Vector(-80.1, 42.4, 0), App.Vector(0, 0, 1), 6.4), math.radians(0), math.radians(24)),
    Part.ArcOfCircle(Part.Circle(App.Vector(-80.1, 42.4, 0), App.Vector(0, 0, 1), 6.3), math.radians(-24), math.radians(0)),
    Part.LineSegment(App.Vector(-74.3, 39.8, 0), App.Vector(-67.7, 39.8, 0)),
    Part.ArcOfCircle(Part.Circle(App.Vector(-80.1, 42.4, 0), App.Vector(0, 0, 1), 12.7), math.radians(-11.54), math.radians(0)),
    Part.ArcOfCircle(Part.Circle(App.Vector(-80.1, 42.4, 0), App.Vector(0, 0, 1), 12.7), math.radians(0), math.radians(11.54)),
    Part.LineSegment(App.Vector(-67.7, 44.9, 0), App.Vector(-74.3, 44.9, 0)),
    Part.LineSegment(App.Vector(-77.6, 29.9, 0), App.Vector(-77.6, 36.6, 0)),
    Part.ArcOfCircle(Part.Circle(App.Vector(-80.1, 42.4, 0), App.Vector(0, 0, 1), 6.3), math.radians(-114), math.radians(-66)),
    Part.LineSegment(App.Vector(-82.7, 36.6, 0), App.Vector(-82.7, 29.9, 0)),
    Part.ArcOfCircle(Part.Circle(App.Vector(-80.1, 42.4, 0), App.Vector(0, 0, 1), 12.7), math.radians(-102), math.radians(-78)),
    Part.ArcOfCircle(Part.Circle(App.Vector(-80.1, 42.4, 0), App.Vector(0, 0, 1), 6.3), math.radians(156), math.radians(204)),
    Part.LineSegment(App.Vector(-86, 44.9, 0), App.Vector(-92.6, 44.9, 0)),
    Part.ArcOfCircle(Part.Circle(App.Vector(-80.1, 42.4, 0), App.Vector(0, 0, 1), 12.7), math.radians(168), math.radians(192)),
    Part.LineSegment(App.Vector(-92.6, 39.8, 0), App.Vector(-86, 39.8, 0)),
], False)
sketch9.addConstraint([
    Sketcher.Constraint("Coincident", 0, 1, 1, 1),
    Sketcher.Constraint("Coincident", 1, 2, 2, 1),
    Sketcher.Constraint("Coincident", 2, 2, 3, 1),
    Sketcher.Constraint("Coincident", 3, 2, 0, 2),
    Sketcher.Constraint("Tangent", 4, 1, 5, 2),
    Sketcher.Constraint("Coincident", 5, 1, 6, 1),
    Sketcher.Constraint("Coincident", 6, 2, 7, 1),
    Sketcher.Constraint("Tangent", 7, 2, 8, 1),
    Sketcher.Constraint("Coincident", 8, 2, 9, 1),
    Sketcher.Constraint("Coincident", 9, 2, 4, 2),
    Sketcher.Constraint("Coincident", 10, 2, 11, 2),
    Sketcher.Constraint("Coincident", 11, 1, 12, 1),
    Sketcher.Constraint("Coincident", 12, 2, 13, 1),
    Sketcher.Constraint("Coincident", 13, 2, 10, 1),
    Sketcher.Constraint("Coincident", 14, 1, 15, 1),
    Sketcher.Constraint("Coincident", 15, 2, 16, 1),
    Sketcher.Constraint("Coincident", 16, 2, 17, 1),
    Sketcher.Constraint("Coincident", 17, 2, 14, 2),
    Sketcher.Constraint("Vertical", 1),
    Sketcher.Constraint("Vertical", 3),
    Sketcher.Constraint("Horizontal", 6),
    Sketcher.Constraint("Horizontal", 9),
    Sketcher.Constraint("Vertical", 10),
    Sketcher.Constraint("Vertical", 12),
    Sketcher.Constraint("Horizontal", 15),
    Sketcher.Constraint("Horizontal", 17),
    Sketcher.Constraint("Coincident", 2, 3, 0, 3),
    Sketcher.Constraint("Coincident", 4, 3, 0, 3),
    Sketcher.Constraint("Coincident", 7, 3, 0, 3),
    Sketcher.Constraint("Coincident", 11, 3, 0, 3),
    Sketcher.Constraint("Coincident", 13, 3, 0, 3),
    Sketcher.Constraint("Coincident", 14, 3, 0, 3),
    Sketcher.Constraint("Coincident", 16, 3, 0, 3),
    Sketcher.Constraint("Equal", 0, 4),
    Sketcher.Constraint("Equal", 4, 5),
    Sketcher.Constraint("Equal", 2, 7),
    Sketcher.Constraint("Equal", 7, 8),
    Sketcher.Constraint("Equal", 5, 11),
    Sketcher.Constraint("Equal", 8, 13),
    Sketcher.Constraint("Equal", 11, 14),
    Sketcher.Constraint("Equal", 13, 16),
    Sketcher.Constraint("Horizontal", 1, 2, 2, 2),
    Sketcher.Constraint("Horizontal", 16, 3, 4, 1),
    Sketcher.Constraint("Horizontal", 4, 1, 7, 2),
    Sketcher.Constraint("Horizontal", 10, 2, 11, 1),
    Sketcher.Constraint("Horizontal", 9, 2, 14, 1),
    Sketcher.Constraint("Horizontal", 6, 2, 16, 2),
    Sketcher.Constraint("Vertical", 6, 2, 8, 2),
    Sketcher.Constraint("Vertical", 1, 2, 10, 2),
    Sketcher.Constraint("Equal", 17, 1),
    Sketcher.Constraint("Radius", 2, Q("0.5 in")),
    Sketcher.Constraint("Radius", 0, Q("0.25 in")),
    Sketcher.Constraint("DistanceX", 8, 3, 0, 1, Q("0.1 in")),
    Sketcher.Constraint("DistanceX", 0, 3, -1, 1, 80.135259),
    Sketcher.Constraint("DistanceY", -1, 1, 1, 2, 54.825411),
])
sketch9.setExpression("Constraints[50]", "Params.sketch9_radius")
sketch9.setExpression("Constraints[51]", "Params.sketch9_radius2")
pocket3 = doc.addObject("PartDesign::Pocket", "Pocket002")
body3.addObject(pocket3)
pocket3.Profile = sketch9
pocket3.setExpression("Length", "Params.pocket3_length")
body4 = doc.addObject("PartDesign::Body", "Body003")

sketch10 = doc.addObject("Sketcher::SketchObject", "Sketch009")
body4.addObject(sketch10)
sketch10.AttachmentSupport = (doc.getObject("XY_Plane003"), [""])
sketch10.MapMode = "FlatFace"
sketch10.addGeometry([
    Part.ArcOfCircle(Part.Circle(App.Vector(141, -100, 0), App.Vector(0, 0, 1), 10), math.radians(-64), math.radians(90)),
    Part.LineSegment(App.Vector(141, -90, 0), App.Vector(141, -263, 0)),
    Part.ArcOfCircle(Part.Circle(App.Vector(141, -252, 0), App.Vector(0, 0, 1), 10), math.radians(-90), math.radians(0)),
    Part.ArcOfCircle(Part.Circle(App.Vector(141, -252, 0), App.Vector(0, 0, 1), 10), math.radians(0), math.radians(64)),
    Part.LineSegment(App.Vector(145, -243, 0), App.Vector(145, -109, 0)),
], False)
sketch10.addGeometry(Part.LineSegment(App.Vector(141, -90, 0), App.Vector(141, -263, 0)), True)
sketch10.addConstraint([
    Sketcher.Constraint("Coincident", 0, 2, 1, 1),
    Sketcher.Constraint("Coincident", 1, 2, 2, 1),
    Sketcher.Constraint("Tangent", 2, 2, 3, 1),
    Sketcher.Constraint("Coincident", 3, 2, 4, 1),
    Sketcher.Constraint("Coincident", 4, 2, 0, 1),
    Sketcher.Constraint("Vertical", 1),
    Sketcher.Constraint("Vertical", 4),
    Sketcher.Constraint("Vertical", 5),
    Sketcher.Constraint("Coincident", 5, 1, 0, 2),
    Sketcher.Constraint("Equal", 0, 2),
    Sketcher.Constraint("Equal", 2, 3),
    Sketcher.Constraint("Horizontal", 3, 3, 2, 2),
    Sketcher.Constraint("Vertical", 0, 3, 2, 3),
    Sketcher.Constraint("Vertical", 3, 3, 0, 2),
    Sketcher.Constraint("Equal", 1, 5),
    Sketcher.Constraint("Radius", 0, Q("0.4 in")),
    Sketcher.Constraint("DistanceY", 1, 2, 1, 1, Q("6.8 in")),
    Sketcher.Constraint("DistanceX", 2, 3, 3, 2, Q("0.175 in")),
    Sketcher.Constraint("DistanceY", 0, 3, -1, 1, 100.06773),
    Sketcher.Constraint("DistanceX", -1, 1, 0, 3, 140.765233),
])
sketch10.setExpression("Constraints[15]", "Params.sketch10_radius")
sketch10.setExpression("Constraints[16]", "Params.sketch10_height")
revolution = doc.addObject("PartDesign::Revolution", "Revolution")
body4.addObject(revolution)
revolution.Profile = sketch10
revolution.ReferenceAxis = (sketch10, ["Axis0"])
revolution.setExpression("Angle", "Params.revolution_angle")

sketch11 = doc.addObject("Sketcher::SketchObject", "Sketch010")
body4.addObject(sketch11)
sketch11.AttachmentSupport = (doc.getObject("XY_Plane003"), [""])
sketch11.MapMode = "FlatFace"
add_polygon(sketch11, [(157, -176), (157, -160), (125, -160), (125, -170), (80, -170), (80, -176)])
sketch11.addGeometry(Part.LineSegment(App.Vector(157, -176, 0), App.Vector(80, -176, 0)), True)
sketch11.addConstraint([
    Sketcher.Constraint("Vertical", 0),
    Sketcher.Constraint("Horizontal", 1),
    Sketcher.Constraint("Vertical", 2),
    Sketcher.Constraint("Horizontal", 3),
    Sketcher.Constraint("Vertical", 4),
    Sketcher.Constraint("Horizontal", 5),
    Sketcher.Constraint("Horizontal", 6),
    Sketcher.Constraint("Coincident", 6, 1, 5, 2),
    Sketcher.Constraint("Vertical", 3, 2, 6, 2),
    Sketcher.Constraint("DistanceX", 5, 1, 5, 2, Q("3 in")),
    Sketcher.Constraint("DistanceX", 1, 2, 1, 1, Q("1.25 in")),
    Sketcher.Constraint("DistanceY", 4, 2, 4, 1, Q("0.25 in")),
    Sketcher.Constraint("DistanceY", 0, 1, 0, 2, Q("0.625 in")),
    Sketcher.Constraint("DistanceY", 0, 2, -1, 1, 160.39273),
    Sketcher.Constraint("DistanceX", -1, 1, 0, 2, 156.640233),
])
sketch11.setExpression("Constraints[15]", "Params.sketch11_width")
sketch11.setExpression("Constraints[16]", "Params.sketch11_width2")
sketch11.setExpression("Constraints[17]", "Params.sketch11_height")
sketch11.setExpression("Constraints[18]", "Params.sketch11_height2")
revolution2 = doc.addObject("PartDesign::Revolution", "Revolution001")
body4.addObject(revolution2)
revolution2.Profile = sketch11
revolution2.ReferenceAxis = (sketch11, ["Axis0"])
revolution2.setExpression("Angle", "Params.revolution2_angle")

doc.recompute()
